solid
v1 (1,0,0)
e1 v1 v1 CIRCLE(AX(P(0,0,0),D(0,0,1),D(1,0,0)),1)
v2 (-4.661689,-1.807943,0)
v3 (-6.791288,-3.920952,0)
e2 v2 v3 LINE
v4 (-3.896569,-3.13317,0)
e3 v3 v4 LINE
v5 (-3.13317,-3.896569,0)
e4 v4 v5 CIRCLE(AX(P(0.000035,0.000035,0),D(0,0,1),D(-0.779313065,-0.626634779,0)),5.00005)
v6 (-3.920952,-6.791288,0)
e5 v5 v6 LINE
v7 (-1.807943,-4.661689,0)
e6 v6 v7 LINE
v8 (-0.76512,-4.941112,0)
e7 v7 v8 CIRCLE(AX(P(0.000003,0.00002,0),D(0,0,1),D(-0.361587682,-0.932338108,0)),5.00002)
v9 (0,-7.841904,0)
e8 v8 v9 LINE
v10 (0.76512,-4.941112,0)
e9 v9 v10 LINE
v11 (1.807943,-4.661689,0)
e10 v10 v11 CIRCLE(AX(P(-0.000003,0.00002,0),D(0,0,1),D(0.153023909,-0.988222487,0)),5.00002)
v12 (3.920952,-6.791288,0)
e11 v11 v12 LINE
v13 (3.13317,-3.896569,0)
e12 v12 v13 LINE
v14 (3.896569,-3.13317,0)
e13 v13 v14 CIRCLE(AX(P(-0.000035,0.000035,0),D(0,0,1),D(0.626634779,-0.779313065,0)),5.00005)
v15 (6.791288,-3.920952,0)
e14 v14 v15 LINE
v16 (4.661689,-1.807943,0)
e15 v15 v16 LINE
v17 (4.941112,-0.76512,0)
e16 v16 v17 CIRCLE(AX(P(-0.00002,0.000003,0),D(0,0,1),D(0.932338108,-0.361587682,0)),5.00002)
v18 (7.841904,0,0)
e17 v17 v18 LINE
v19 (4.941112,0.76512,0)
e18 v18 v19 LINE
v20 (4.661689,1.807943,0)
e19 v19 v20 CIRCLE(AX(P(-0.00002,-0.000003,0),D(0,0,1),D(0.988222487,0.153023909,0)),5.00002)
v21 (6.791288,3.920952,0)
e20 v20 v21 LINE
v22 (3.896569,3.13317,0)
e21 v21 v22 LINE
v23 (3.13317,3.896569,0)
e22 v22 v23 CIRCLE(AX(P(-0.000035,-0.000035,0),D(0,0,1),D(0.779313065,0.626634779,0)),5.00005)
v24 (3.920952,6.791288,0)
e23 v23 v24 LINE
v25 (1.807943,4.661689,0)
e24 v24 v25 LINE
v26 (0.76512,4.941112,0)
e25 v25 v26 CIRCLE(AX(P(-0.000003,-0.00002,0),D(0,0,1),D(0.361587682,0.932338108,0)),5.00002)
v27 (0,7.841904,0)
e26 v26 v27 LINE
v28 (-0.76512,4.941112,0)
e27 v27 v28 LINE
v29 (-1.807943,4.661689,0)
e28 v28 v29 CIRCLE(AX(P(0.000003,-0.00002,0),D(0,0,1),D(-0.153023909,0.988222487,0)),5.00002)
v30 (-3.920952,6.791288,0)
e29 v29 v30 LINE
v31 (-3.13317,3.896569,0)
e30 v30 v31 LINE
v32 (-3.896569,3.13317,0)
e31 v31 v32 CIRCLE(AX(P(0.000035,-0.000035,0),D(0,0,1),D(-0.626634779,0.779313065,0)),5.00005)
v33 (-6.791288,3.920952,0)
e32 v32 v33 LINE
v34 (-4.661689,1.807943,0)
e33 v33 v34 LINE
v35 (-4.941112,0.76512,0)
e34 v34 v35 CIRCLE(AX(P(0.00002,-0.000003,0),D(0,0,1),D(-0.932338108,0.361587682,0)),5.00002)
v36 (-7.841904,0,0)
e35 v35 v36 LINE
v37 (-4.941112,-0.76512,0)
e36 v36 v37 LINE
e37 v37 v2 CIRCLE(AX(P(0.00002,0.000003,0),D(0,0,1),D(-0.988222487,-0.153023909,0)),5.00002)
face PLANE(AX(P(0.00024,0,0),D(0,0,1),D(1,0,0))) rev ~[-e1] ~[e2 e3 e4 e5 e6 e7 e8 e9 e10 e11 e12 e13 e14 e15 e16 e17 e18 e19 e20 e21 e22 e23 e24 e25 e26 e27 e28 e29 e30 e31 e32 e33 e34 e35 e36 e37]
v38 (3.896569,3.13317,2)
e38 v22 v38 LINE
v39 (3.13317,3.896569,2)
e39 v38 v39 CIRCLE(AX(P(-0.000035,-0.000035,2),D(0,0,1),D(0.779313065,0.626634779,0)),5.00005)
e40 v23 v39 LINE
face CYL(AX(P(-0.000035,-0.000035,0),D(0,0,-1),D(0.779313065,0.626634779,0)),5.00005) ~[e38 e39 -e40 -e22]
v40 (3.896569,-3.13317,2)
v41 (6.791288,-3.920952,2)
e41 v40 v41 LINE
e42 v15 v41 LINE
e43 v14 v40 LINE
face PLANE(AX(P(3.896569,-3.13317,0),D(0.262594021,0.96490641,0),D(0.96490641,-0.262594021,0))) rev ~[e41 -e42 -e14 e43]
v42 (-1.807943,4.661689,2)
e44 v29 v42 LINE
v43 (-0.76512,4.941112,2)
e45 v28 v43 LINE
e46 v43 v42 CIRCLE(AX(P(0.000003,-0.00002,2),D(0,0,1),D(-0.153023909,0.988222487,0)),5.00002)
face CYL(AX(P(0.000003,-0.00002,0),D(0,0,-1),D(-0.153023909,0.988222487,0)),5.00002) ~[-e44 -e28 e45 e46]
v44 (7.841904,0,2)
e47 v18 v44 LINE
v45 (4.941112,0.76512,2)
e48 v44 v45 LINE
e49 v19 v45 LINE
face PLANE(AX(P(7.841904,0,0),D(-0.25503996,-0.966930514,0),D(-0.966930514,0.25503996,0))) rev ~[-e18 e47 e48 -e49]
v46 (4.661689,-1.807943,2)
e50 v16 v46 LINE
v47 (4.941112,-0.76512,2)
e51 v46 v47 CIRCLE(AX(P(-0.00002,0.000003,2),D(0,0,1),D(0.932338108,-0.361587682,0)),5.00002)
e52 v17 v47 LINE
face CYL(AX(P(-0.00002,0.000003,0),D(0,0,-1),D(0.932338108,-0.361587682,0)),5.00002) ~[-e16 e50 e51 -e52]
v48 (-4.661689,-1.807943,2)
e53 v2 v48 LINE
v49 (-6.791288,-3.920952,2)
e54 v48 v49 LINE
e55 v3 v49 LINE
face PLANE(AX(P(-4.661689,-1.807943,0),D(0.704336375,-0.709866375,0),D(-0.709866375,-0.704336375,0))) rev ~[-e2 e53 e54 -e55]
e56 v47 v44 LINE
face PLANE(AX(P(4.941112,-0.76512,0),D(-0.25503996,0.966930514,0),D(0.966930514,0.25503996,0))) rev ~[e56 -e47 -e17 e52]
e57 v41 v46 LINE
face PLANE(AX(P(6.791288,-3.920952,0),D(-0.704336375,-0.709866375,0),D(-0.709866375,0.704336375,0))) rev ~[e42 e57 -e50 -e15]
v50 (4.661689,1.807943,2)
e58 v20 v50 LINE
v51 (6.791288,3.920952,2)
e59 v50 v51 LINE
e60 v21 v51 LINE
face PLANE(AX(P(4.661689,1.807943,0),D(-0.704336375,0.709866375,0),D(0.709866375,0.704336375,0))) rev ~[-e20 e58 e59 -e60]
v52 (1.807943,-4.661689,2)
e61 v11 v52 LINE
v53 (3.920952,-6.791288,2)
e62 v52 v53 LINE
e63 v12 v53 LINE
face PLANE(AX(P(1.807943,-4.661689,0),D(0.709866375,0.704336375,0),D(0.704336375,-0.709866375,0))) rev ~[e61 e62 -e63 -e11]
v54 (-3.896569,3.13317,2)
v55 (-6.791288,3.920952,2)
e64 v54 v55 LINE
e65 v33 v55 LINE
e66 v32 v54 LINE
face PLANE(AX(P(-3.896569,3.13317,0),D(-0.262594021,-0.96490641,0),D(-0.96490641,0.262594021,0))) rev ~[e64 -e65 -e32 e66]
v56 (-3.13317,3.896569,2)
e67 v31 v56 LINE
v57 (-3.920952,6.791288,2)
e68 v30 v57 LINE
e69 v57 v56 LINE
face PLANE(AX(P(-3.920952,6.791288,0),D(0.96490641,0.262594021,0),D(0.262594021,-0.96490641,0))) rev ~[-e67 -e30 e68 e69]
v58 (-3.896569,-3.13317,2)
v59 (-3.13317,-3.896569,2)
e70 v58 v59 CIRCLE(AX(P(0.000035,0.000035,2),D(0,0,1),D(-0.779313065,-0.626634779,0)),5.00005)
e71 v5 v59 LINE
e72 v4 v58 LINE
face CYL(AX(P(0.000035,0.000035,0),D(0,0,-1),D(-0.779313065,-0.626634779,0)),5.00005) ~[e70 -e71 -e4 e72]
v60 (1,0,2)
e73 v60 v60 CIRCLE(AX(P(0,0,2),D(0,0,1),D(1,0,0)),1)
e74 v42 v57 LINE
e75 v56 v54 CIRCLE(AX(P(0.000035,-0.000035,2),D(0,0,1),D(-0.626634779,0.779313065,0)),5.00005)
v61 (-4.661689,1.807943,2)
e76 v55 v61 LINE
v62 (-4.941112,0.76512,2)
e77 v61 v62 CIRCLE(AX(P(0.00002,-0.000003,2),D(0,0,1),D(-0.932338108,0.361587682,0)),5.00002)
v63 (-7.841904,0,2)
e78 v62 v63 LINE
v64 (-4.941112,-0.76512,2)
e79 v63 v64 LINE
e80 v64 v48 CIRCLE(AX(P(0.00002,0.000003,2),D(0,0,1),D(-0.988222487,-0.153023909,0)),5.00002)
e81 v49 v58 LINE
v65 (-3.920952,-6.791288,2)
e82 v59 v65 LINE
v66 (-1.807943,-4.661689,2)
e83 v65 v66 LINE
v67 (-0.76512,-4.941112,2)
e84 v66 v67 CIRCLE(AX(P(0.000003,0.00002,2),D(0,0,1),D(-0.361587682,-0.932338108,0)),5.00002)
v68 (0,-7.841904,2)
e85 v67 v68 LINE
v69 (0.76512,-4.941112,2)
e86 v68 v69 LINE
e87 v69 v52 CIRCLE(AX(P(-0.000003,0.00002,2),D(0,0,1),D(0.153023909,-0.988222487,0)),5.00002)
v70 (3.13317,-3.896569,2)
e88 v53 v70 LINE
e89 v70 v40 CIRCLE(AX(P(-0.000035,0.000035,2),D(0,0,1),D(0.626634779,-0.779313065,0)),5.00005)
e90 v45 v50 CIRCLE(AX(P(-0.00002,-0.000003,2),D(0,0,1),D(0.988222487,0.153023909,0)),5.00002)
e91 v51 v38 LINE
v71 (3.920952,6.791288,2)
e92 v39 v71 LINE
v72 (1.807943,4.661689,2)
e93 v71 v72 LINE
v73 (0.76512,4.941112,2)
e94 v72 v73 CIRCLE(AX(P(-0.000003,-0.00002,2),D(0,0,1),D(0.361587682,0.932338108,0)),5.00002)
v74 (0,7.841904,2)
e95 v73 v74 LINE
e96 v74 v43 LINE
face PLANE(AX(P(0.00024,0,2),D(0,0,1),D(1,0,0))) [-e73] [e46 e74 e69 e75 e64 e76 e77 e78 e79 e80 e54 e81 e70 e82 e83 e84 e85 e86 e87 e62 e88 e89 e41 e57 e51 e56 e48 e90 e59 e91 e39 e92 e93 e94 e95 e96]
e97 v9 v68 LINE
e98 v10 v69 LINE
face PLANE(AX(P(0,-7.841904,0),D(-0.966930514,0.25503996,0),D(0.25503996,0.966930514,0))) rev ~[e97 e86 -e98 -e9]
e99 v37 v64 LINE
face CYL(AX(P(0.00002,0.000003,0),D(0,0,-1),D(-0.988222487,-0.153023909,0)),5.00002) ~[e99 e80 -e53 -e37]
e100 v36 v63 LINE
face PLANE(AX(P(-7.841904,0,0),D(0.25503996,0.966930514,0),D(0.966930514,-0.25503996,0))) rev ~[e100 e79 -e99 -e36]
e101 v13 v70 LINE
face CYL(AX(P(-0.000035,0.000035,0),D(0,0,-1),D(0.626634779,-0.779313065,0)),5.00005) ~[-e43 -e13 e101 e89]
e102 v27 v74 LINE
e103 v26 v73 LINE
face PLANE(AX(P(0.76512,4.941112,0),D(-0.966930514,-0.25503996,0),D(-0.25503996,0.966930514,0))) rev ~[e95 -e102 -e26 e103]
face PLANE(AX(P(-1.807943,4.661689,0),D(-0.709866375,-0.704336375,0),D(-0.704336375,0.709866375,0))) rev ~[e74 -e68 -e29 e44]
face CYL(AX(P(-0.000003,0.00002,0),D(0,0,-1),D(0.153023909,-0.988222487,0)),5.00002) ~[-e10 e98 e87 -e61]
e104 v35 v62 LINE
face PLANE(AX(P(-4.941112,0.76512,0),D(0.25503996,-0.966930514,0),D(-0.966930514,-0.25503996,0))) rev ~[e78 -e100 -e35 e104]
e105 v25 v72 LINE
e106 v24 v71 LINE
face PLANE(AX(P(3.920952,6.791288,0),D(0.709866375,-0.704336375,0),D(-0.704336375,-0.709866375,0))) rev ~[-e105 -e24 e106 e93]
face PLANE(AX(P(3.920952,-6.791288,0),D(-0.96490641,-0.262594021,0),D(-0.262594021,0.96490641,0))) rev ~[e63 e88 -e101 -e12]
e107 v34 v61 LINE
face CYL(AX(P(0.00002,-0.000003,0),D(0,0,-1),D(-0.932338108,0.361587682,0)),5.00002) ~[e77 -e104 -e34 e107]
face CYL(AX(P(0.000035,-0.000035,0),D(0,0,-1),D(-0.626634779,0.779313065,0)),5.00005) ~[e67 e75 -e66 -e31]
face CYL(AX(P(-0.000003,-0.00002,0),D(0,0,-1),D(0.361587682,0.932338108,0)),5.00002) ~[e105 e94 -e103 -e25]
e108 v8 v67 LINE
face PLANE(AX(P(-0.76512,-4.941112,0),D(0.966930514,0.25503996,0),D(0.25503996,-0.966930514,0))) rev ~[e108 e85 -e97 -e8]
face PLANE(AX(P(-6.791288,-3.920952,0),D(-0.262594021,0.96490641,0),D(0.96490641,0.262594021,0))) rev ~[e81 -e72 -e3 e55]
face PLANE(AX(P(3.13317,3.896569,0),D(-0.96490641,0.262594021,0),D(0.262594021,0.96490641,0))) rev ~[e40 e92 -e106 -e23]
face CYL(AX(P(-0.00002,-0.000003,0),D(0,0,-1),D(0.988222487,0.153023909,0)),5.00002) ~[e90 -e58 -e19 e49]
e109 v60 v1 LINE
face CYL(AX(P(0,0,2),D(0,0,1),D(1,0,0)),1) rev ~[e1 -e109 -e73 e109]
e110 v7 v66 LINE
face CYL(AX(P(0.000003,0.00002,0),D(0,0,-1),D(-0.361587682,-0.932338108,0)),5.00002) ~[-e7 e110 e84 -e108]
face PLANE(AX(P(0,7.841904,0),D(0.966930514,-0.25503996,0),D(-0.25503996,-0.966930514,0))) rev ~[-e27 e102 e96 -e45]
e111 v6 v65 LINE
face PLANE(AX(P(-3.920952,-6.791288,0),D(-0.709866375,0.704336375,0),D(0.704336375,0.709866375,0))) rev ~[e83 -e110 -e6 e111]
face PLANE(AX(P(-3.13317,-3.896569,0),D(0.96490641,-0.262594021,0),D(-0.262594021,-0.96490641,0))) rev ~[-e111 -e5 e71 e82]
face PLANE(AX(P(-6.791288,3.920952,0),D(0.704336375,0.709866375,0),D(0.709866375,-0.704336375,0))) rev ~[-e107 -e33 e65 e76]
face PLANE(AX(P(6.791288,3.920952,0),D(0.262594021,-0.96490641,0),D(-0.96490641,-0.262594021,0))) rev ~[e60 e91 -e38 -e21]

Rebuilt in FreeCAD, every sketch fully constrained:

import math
import FreeCAD as App
import Part
import Sketcher
from FreeCAD import Vector
Q = App.Units.Quantity

doc = App.newDocument("Part")
body = doc.addObject("PartDesign::Body", "Body")

sketch1 = doc.addObject("Sketcher::SketchObject", "Sketch")
body.addObject(sketch1)
sketch1.AttachmentSupport = (doc.XY_Plane, [""])
sketch1.MapMode = "FlatFace"
sketch1.addGeometry([
    Part.ArcOfCircle(Part.Circle(Vector(-0.00002, -0.000003, 0), Vector(0, 0, 1), 5.00002), math.radians(8.802207), math.radians(21.197733)),
    Part.LineSegment(Vector(4.661689, 1.807943, 0), Vector(6.791288, 3.920952, 0)),
    Part.LineSegment(Vector(6.791288, 3.920952, 0), Vector(3.896569, 3.13317, 0)),
    Part.ArcOfCircle(Part.Circle(Vector(-0.000035, -0.000035, 0), Vector(0, 0, 1), 5.00005), math.radians(38.802277), math.radians(51.197723)),
    Part.LineSegment(Vector(3.13317, 3.896569, 0), Vector(3.920952, 6.791288, 0)),
    Part.LineSegment(Vector(3.920952, 6.791288, 0), Vector(1.807943, 4.661689, 0)),
    Part.ArcOfCircle(Part.Circle(Vector(-0.000003, -0.00002, 0), Vector(0, 0, 1), 5.00002), math.radians(68.802267), math.radians(81.197793)),
    Part.LineSegment(Vector(0.76512, 4.941112, 0), Vector(0, 7.841904, 0)),
    Part.LineSegment(Vector(0, 7.841904, 0), Vector(-0.76512, 4.941112, 0)),
    Part.ArcOfCircle(Part.Circle(Vector(0.000003, -0.00002, 0), Vector(0, 0, 1), 5.00002), math.radians(98.802207), math.radians(111.197733)),
    Part.LineSegment(Vector(-1.807943, 4.661689, 0), Vector(-3.920952, 6.791288, 0)),
    Part.LineSegment(Vector(-3.920952, 6.791288, 0), Vector(-3.13317, 3.896569, 0)),
    Part.ArcOfCircle(Part.Circle(Vector(0.000035, -0.000035, 0), Vector(0, 0, 1), 5.00005), math.radians(128.802277), math.radians(141.197723)),
    Part.LineSegment(Vector(-3.896569, 3.13317, 0), Vector(-6.791288, 3.920952, 0)),
    Part.LineSegment(Vector(-6.791288, 3.920952, 0), Vector(-4.661689, 1.807943, 0)),
    Part.ArcOfCircle(Part.Circle(Vector(0.00002, -0.000003, 0), Vector(0, 0, 1), 5.00002), math.radians(158.802267), math.radians(171.197793)),
    Part.LineSegment(Vector(-4.941112, 0.76512, 0), Vector(-7.841904, 0, 0)),
    Part.LineSegment(Vector(-7.841904, 0, 0), Vector(-4.941112, -0.76512, 0)),
    Part.ArcOfCircle(Part.Circle(Vector(0.00002, 0.000003, 0), Vector(0, 0, 1), 5.00002), math.radians(-171.197793), math.radians(-158.802267)),
    Part.LineSegment(Vector(-4.661689, -1.807943, 0), Vector(-6.791288, -3.920952, 0)),
    Part.LineSegment(Vector(-6.791288, -3.920952, 0), Vector(-3.896569, -3.13317, 0)),
    Part.ArcOfCircle(Part.Circle(Vector(0.000035, 0.000035, 0), Vector(0, 0, 1), 5.00005), math.radians(-141.197723), math.radians(-128.802277)),
    Part.LineSegment(Vector(-3.13317, -3.896569, 0), Vector(-3.920952, -6.791288, 0)),
    Part.LineSegment(Vector(-3.920952, -6.791288, 0), Vector(-1.807943, -4.661689, 0)),
    Part.ArcOfCircle(Part.Circle(Vector(0.000003, 0.00002, 0), Vector(0, 0, 1), 5.00002), math.radians(-111.197733), math.radians(-98.802207)),
    Part.LineSegment(Vector(-0.76512, -4.941112, 0), Vector(0, -7.841904, 0)),
    Part.LineSegment(Vector(0, -7.841904, 0), Vector(0.76512, -4.941112, 0)),
    Part.ArcOfCircle(Part.Circle(Vector(-0.000003, 0.00002, 0), Vector(0, 0, 1), 5.00002), math.radians(-81.197793), math.radians(-68.802267)),
    Part.LineSegment(Vector(1.807943, -4.661689, 0), Vector(3.920952, -6.791288, 0)),
    Part.LineSegment(Vector(3.920952, -6.791288, 0), Vector(3.13317, -3.896569, 0)),
    Part.ArcOfCircle(Part.Circle(Vector(-0.000035, 0.000035, 0), Vector(0, 0, 1), 5.00005), math.radians(-51.197723), math.radians(-38.802277)),
    Part.LineSegment(Vector(3.896569, -3.13317, 0), Vector(6.791288, -3.920952, 0)),
    Part.LineSegment(Vector(6.791288, -3.920952, 0), Vector(4.661689, -1.807943, 0)),
    Part.ArcOfCircle(Part.Circle(Vector(-0.00002, 0.000003, 0), Vector(0, 0, 1), 5.00002), math.radians(-21.197733), math.radians(-8.802207)),
    Part.LineSegment(Vector(4.941112, -0.76512, 0), Vector(7.841904, 0, 0)),
    Part.LineSegment(Vector(7.841904, 0, 0), Vector(4.941112, 0.76512, 0)),
], False)
sketch1.addConstraint([
    Sketcher.Constraint("Coincident", 0, 2, 1, 1),
    Sketcher.Constraint("Coincident", 1, 2, 2, 1),
    Sketcher.Constraint("Coincident", 2, 2, 3, 1),
    Sketcher.Constraint("Coincident", 3, 2, 4, 1),
    Sketcher.Constraint("Coincident", 4, 2, 5, 1),
    Sketcher.Constraint("Coincident", 5, 2, 6, 1),
    Sketcher.Constraint("Coincident", 6, 2, 7, 1),
    Sketcher.Constraint("Coincident", 7, 2, 8, 1),
    Sketcher.Constraint("Coincident", 8, 2, 9, 1),
    Sketcher.Constraint("Coincident", 9, 2, 10, 1),
    Sketcher.Constraint("Coincident", 10, 2, 11, 1),
    Sketcher.Constraint("Coincident", 11, 2, 12, 1),
    Sketcher.Constraint("Coincident", 12, 2, 13, 1),
    Sketcher.Constraint("Coincident", 13, 2, 14, 1),
    Sketcher.Constraint("Coincident", 14, 2, 15, 1),
    Sketcher.Constraint("Coincident", 15, 2, 16, 1),
    Sketcher.Constraint("Coincident", 16, 2, 17, 1),
    Sketcher.Constraint("Coincident", 17, 2, 18, 1),
    Sketcher.Constraint("Coincident", 18, 2, 19, 1),
    Sketcher.Constraint("Coincident", 19, 2, 20, 1),
    Sketcher.Constraint("Coincident", 20, 2, 21, 1),
    Sketcher.Constraint("Coincident", 21, 2, 22, 1),
    Sketcher.Constraint("Coincident", 22, 2, 23, 1),
    Sketcher.Constraint("Coincident", 23, 2, 24, 1),
    Sketcher.Constraint("Coincident", 24, 2, 25, 1),
    Sketcher.Constraint("Coincident", 25, 2, 26, 1),
    Sketcher.Constraint("Coincident", 26, 2, 27, 1),
    Sketcher.Constraint("Coincident", 27, 2, 28, 1),
    Sketcher.Constraint("Coincident", 28, 2, 29, 1),
    Sketcher.Constraint("Coincident", 29, 2, 30, 1),
    Sketcher.Constraint("Coincident", 30, 2, 31, 1),
    Sketcher.Constraint("Coincident", 31, 2, 32, 1),
    Sketcher.Constraint("Coincident", 32, 2, 33, 1),
    Sketcher.Constraint("Coincident", 33, 2, 34, 1),
    Sketcher.Constraint("Coincident", 34, 2, 35, 1),
    Sketcher.Constraint("Coincident", 35, 2, 0, 1),
    Sketcher.Constraint("Coincident", 9, 3, 6, 3),
    Sketcher.Constraint("Coincident", 18, 3, 15, 3),
    Sketcher.Constraint("Coincident", 27, 3, 24, 3),
    Sketcher.Constraint("Coincident", 33, 3, 0, 3),
    Sketcher.Constraint("Equal", 0, 6),
    Sketcher.Constraint("Equal", 6, 9),
    Sketcher.Constraint("Equal", 3, 12),
    Sketcher.Constraint("Equal", 9, 15),
    Sketcher.Constraint("Equal", 15, 18),
    Sketcher.Constraint("Equal", 12, 21),
    Sketcher.Constraint("Equal", 18, 24),
    Sketcher.Constraint("Equal", 24, 27),
    Sketcher.Constraint("Equal", 21, 30),
    Sketcher.Constraint("Equal", 27, 33),
    Sketcher.Constraint("Symmetric", 0, 3, 15, 3, -1, 1),
    Sketcher.Constraint("Symmetric", 3, 3, 21, 3, -1, 1),
    Sketcher.Constraint("Symmetric", 6, 3, 24, 3, -1, 1),
    Sketcher.Constraint("Symmetric", 12, 3, 30, 3, -1, 1),
    Sketcher.Constraint("Symmetric", 1, 2, 19, 2, -1, 1),
    Sketcher.Constraint("Symmetric", 4, 2, 22, 2, -1, 1),
    Sketcher.Constraint("Symmetric", 7, 2, 25, 2, -1, 1),
    Sketcher.Constraint("Symmetric", 10, 2, 28, 2, -1, 1),
    Sketcher.Constraint("Symmetric", 13, 2, 31, 2, -1, 1),
    Sketcher.Constraint("Symmetric", 16, 2, 34, 2, -1, 1),
    Sketcher.Constraint("Symmetric", 3, 3, 12, 3, -2),
    Sketcher.Constraint("Symmetric", 6, 2, 8, 2, -2),
    Sketcher.Constraint("Symmetric", 4, 2, 10, 2, -2),
    Sketcher.Constraint("Symmetric", 1, 2, 13, 2, -2),
    Sketcher.Constraint("Symmetric", 0, 2, 14, 2, -2),
    Sketcher.Constraint("PointOnObject", 7, 2, -2),
    Sketcher.Constraint("PointOnObject", 16, 2, -1),
    Sketcher.Constraint("Perpendicular", 1, 10),
    Sketcher.Constraint("Perpendicular", 2, 11),
    Sketcher.Constraint("Perpendicular", 4, 13),
    Sketcher.Constraint("Perpendicular", 5, 14),
    Sketcher.Constraint("Perpendicular", 7, 16),
    Sketcher.Constraint("Perpendicular", 8, 17),
    Sketcher.Constraint("Perpendicular", 10, 19),
    Sketcher.Constraint("Perpendicular", 11, 20),
    Sketcher.Constraint("Perpendicular", 13, 22),
    Sketcher.Constraint("Perpendicular", 14, 23),
    Sketcher.Constraint("Perpendicular", 16, 25),
    Sketcher.Constraint("Perpendicular", 17, 26),
    Sketcher.Constraint("Perpendicular", 19, 28),
    Sketcher.Constraint("Perpendicular", 20, 29),
    Sketcher.Constraint("Perpendicular", 22, 31),
    Sketcher.Constraint("Perpendicular", 23, 32),
    Sketcher.Constraint("Perpendicular", 25, 34),
    Sketcher.Constraint("Perpendicular", 26, 35),
    Sketcher.Constraint("Horizontal", 3, 2, 11, 2),
    Sketcher.Constraint("Equal", 1, 2),
    Sketcher.Constraint("Equal", 2, 4),
    Sketcher.Constraint("Equal", 4, 5),
    Sketcher.Constraint("Equal", 5, 7),
    Sketcher.Constraint("Equal", 14, 16),
    Sketcher.Constraint("Distance", 1, Q("3 mm")),
    Sketcher.Constraint("Radius", 0, Q("5.00002 mm")),
    Sketcher.Constraint("Radius", 3, Q("5.00005 mm")),
    Sketcher.Constraint("DistanceX", 0, 2, 1, 2, Q("2.129599 mm")),
    Sketcher.Constraint("DistanceX", 3, 2, 2, 2, Q("0.763399 mm")),
    Sketcher.Constraint("DistanceY", 2, 2, 3, 2, Q("0.763399 mm")),
    Sketcher.Constraint("DistanceX", -1, 1, 0, 2, Q("4.661689 mm")),
    Sketcher.Constraint("DistanceX", -1, 1, 2, 2, Q("3.896569 mm")),
    Sketcher.Constraint("DistanceY", -1, 1, 2, 2, Q("3.13317 mm")),
    Sketcher.Constraint("DistanceX", -1, 1, 6, 2, Q("0.76512 mm")),
])
pad1 = doc.addObject("PartDesign::Pad", "Pad")
body.addObject(pad1)
pad1.Profile = sketch1
pad1.Length = 2

sketch2 = doc.addObject("Sketcher::SketchObject", "Sketch001")
body.addObject(sketch2)
sketch2.AttachmentSupport = (doc.XY_Plane, [""])
sketch2.MapMode = "FlatFace"
sketch2.AttachmentOffset = App.Placement(Vector(0, 0, 2), App.Rotation())
sketch2.addGeometry(Part.Circle(Vector(0, 0, 0), Vector(0, 0, 1), 1), False)
sketch2.addConstraint([
    Sketcher.Constraint("Coincident", 0, 3, -1, 1),
    Sketcher.Constraint("Diameter", 0, Q("2 mm")),
])
pocket1 = doc.addObject("PartDesign::Pocket", "Pocket")
body.addObject(pocket1)
pocket1.Profile = sketch2
pocket1.Length = 25

doc.recompute()
